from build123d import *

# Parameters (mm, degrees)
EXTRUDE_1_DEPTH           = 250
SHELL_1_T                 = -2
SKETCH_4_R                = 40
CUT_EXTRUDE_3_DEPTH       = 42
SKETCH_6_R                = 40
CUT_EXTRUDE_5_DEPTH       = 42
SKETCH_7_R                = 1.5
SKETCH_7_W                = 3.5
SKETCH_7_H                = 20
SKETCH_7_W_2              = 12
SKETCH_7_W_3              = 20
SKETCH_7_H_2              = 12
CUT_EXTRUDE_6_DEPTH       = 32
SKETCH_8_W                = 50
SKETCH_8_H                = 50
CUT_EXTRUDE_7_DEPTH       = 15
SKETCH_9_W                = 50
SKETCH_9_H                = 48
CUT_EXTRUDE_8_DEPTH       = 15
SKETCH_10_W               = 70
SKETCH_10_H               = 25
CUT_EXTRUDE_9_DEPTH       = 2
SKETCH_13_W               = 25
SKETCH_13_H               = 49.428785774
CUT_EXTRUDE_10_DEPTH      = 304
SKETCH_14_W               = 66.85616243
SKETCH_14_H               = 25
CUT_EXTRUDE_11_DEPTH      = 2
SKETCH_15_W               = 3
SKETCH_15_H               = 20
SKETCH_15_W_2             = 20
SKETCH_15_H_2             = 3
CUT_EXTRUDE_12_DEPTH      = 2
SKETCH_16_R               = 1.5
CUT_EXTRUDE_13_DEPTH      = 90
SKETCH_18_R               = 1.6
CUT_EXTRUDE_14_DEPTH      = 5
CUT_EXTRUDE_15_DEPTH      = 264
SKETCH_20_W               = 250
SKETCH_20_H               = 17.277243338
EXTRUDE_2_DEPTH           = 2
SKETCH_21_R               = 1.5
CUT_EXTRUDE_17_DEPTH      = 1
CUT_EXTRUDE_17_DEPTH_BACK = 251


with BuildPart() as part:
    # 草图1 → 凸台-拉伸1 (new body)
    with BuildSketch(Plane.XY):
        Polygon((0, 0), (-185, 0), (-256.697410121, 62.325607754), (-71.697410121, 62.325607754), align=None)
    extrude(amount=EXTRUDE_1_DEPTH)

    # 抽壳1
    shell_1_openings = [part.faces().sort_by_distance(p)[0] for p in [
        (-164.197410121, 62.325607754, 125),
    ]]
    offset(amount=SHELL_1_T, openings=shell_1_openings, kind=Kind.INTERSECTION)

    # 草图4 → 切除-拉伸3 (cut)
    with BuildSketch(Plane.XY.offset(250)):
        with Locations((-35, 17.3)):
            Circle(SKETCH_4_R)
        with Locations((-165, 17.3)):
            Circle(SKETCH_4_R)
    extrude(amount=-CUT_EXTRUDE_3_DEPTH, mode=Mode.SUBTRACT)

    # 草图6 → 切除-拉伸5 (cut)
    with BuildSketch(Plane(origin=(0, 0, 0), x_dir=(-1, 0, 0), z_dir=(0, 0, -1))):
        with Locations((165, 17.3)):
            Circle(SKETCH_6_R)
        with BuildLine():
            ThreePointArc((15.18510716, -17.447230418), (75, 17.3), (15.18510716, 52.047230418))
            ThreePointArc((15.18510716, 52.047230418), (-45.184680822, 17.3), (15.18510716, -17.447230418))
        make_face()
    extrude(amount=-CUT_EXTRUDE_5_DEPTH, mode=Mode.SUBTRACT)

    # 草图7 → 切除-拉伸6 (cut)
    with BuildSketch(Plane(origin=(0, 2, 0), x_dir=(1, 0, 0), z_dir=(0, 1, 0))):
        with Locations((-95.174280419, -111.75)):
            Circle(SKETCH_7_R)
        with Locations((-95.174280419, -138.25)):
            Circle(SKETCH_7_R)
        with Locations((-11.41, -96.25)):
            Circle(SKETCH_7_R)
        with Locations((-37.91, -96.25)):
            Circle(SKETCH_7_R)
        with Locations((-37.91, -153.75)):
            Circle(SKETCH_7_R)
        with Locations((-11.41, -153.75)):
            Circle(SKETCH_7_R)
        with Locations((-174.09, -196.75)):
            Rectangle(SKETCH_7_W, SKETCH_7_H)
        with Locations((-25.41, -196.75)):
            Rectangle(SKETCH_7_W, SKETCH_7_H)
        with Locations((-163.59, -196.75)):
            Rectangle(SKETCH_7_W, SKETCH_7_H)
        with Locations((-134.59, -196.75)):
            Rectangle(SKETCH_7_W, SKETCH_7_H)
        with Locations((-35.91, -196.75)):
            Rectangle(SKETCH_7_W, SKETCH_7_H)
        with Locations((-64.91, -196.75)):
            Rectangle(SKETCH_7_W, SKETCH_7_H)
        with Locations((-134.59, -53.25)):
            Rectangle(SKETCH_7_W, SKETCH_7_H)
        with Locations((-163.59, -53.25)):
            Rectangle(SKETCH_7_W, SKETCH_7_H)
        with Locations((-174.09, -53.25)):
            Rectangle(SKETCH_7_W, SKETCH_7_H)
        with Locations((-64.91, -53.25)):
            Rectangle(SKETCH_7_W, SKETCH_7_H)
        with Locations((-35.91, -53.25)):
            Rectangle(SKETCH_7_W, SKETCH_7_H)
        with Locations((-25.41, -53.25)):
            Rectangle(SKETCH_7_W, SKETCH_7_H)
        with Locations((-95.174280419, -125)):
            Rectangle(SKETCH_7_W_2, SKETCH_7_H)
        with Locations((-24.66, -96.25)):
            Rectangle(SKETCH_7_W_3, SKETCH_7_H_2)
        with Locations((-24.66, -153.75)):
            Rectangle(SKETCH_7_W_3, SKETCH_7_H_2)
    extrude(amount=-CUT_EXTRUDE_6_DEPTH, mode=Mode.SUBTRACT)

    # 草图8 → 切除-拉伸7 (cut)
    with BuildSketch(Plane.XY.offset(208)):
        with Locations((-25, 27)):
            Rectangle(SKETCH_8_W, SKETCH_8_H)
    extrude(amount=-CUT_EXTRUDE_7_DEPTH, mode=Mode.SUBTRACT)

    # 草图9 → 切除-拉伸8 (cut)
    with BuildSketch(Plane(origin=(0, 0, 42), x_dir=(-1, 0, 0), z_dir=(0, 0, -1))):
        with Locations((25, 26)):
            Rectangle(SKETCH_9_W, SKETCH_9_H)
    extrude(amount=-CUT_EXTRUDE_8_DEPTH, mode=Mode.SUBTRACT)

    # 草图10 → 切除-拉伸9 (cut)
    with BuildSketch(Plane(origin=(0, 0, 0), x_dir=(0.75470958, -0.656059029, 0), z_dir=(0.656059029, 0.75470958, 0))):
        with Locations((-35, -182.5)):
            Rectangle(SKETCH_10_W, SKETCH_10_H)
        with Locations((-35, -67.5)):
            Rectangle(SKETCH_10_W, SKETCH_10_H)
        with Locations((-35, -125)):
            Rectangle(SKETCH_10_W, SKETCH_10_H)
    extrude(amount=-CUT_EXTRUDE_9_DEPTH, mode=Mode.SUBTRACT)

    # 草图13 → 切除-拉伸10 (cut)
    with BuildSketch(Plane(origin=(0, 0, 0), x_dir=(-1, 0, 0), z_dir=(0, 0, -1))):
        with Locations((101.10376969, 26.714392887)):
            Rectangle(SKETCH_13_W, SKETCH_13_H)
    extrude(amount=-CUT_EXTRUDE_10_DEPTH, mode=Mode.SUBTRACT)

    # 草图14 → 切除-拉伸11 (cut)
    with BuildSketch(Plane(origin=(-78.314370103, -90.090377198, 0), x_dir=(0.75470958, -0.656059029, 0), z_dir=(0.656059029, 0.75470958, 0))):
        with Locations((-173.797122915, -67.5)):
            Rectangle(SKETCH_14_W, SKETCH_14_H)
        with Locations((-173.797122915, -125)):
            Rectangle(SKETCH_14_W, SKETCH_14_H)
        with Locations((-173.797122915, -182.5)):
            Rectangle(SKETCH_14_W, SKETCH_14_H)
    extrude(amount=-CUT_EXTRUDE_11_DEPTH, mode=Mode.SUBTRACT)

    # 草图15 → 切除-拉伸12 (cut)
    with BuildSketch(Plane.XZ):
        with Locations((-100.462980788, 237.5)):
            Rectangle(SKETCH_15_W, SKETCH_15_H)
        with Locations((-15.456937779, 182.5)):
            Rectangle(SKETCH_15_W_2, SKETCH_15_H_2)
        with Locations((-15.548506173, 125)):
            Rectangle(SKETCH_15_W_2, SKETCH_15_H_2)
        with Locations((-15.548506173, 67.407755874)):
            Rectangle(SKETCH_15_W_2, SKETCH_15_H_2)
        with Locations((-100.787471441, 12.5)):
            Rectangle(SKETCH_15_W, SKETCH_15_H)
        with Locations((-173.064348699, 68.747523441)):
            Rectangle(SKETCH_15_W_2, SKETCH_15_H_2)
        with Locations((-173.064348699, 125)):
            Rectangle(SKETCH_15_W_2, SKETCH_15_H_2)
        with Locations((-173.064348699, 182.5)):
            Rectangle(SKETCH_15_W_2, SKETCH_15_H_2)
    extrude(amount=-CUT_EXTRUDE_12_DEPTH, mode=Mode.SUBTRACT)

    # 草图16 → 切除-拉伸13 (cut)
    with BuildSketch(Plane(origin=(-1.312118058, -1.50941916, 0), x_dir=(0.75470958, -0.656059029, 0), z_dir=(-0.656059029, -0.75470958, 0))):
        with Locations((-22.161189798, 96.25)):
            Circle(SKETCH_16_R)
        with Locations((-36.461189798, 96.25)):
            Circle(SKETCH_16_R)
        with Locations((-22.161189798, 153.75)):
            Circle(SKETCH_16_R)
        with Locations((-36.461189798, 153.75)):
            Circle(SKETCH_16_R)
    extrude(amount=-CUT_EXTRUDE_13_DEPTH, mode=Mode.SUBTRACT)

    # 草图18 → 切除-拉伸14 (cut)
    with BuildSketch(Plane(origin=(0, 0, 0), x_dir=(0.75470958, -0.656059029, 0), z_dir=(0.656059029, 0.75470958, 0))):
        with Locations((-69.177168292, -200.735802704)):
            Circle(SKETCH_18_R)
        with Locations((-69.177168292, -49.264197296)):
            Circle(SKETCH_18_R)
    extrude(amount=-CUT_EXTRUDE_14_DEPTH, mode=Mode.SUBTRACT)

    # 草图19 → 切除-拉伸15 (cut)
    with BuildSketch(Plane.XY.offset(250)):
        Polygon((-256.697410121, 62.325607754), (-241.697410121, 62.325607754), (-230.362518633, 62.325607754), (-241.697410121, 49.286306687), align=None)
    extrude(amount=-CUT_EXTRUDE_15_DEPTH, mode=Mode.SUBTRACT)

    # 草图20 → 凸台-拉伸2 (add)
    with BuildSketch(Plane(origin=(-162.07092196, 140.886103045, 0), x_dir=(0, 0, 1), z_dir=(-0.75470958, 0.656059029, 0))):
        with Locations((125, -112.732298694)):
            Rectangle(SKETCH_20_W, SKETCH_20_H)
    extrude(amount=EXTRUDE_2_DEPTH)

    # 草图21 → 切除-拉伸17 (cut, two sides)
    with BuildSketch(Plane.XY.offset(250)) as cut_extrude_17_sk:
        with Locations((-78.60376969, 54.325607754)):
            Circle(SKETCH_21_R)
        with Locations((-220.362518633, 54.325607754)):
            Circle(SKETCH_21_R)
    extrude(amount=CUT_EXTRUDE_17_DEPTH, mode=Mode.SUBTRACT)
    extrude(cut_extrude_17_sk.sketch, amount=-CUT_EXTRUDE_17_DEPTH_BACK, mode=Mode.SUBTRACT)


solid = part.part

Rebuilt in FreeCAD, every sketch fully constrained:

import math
import FreeCAD as App
import Part
import Sketcher
Q = App.Units.Quantity


def faces_at(feature, points):
    """Names of the faces that lie closest to the given points."""
    faces = feature.Shape.Faces
    near = lambda p: min(range(len(faces)), key=lambda i: faces[i].distToShape(Part.Vertex(*p))[0])
    return sorted({f"Face{near(p) + 1}" for p in points})


def add_polygon(sketch, points):
    """Adds a closed chain of lines whose ends are joined by coincident constraints."""
    first, n = sketch.GeometryCount, len(points)
    for a, b in zip(points, points[1:] + points[:1]):
        sketch.addGeometry(Part.LineSegment(App.Vector(*a, 0), App.Vector(*b, 0)), False)
    for i in range(n):
        sketch.addConstraint(Sketcher.Constraint("Coincident", first + i, 2, first + (i + 1) % n, 1))

doc = App.newDocument("Part")
params = doc.addObject("Spreadsheet::Sheet", "Params")
for row, (alias, value) in enumerate([
    ("sketch1_width", "185 mm"),
    ("sketch1_length", "95 mm"),
    ("pad1_length", "250 mm"),
    ("thickness_wall", "2 mm"),
    ("sketch2_diameter", "80 mm"),
    ("pocket1_length", "42 mm"),
    ("sketch3_diameter", "80 mm"),
    ("pocket2_length", "42 mm"),
    ("sketch4_diameter", "3 mm"),
    ("sketch4_width", "12 mm"),
    ("sketch4_width2", "20 mm"),
    ("sketch4_width3", "3.5 mm"),
    ("pocket3_length", "32 mm"),
    ("sketch5_width", "50 mm"),
    ("pocket4_length", "15 mm"),
    ("sketch6_width", "50 mm"),
    ("sketch6_height", "48 mm"),
    ("pocket5_length", "15 mm"),
    ("sketch7_width", "70 mm"),
    ("sketch7_height", "25 mm"),
    ("pocket6_length", "2 mm"),
    ("sketch8_width", "25 mm"),
    ("pocket7_length", "304 mm"),
    ("sketch9_height", "25 mm"),
    ("pocket8_length", "2 mm"),
    ("sketch10_width", "3 mm"),
    ("sketch10_width2", "20 mm"),
    ("pocket9_length", "2 mm"),
    ("sketch11_diameter", "3 mm"),
    ("pocket10_length", "90 mm"),
    ("sketch12_diameter", "3.2 mm"),
    ("pocket11_length", "5 mm"),
    ("pocket12_length", "264 mm"),
    ("sketch14_width", "250 mm"),
    ("pad2_length", "2 mm"),
    ("sketch15_diameter", "3 mm"),
], start=1):
    params.set(f"A{row}", alias)
    params.set(f"B{row}", "=" + value)
    params.setAlias(f"B{row}", alias)

body = doc.addObject("PartDesign::Body", "Body")

sketch1 = body.newObject("Sketcher::SketchObject", "Sketch")
sketch1.AttachmentSupport = (doc.getObject("XY_Plane"), [""])
sketch1.MapMode = "FlatFace"
add_polygon(sketch1, [(-185, 0), (0, 0), (-72, 62), (-257, 62)])
sketch1.addConstraint([
    Sketcher.Constraint("Horizontal", 0),
    Sketcher.Constraint("Horizontal", 2),
    Sketcher.Constraint("Coincident", 0, 2, -1, 1),
    Sketcher.Constraint("Parallel", 1, 3),
    Sketcher.Constraint("DistanceX", 0, 1, 0, 2, 185.0),
    Sketcher.Constraint("Angle", 1, Q("139 deg")),
    Sketcher.Constraint("Distance", 1, 95.0),
])
sketch1.setExpression("Constraints[8]", "Params.sketch1_width")
sketch1.setExpression("Constraints[10]", "Params.sketch1_length")
pad1 = body.newObject("PartDesign::Pad", "Pad")
pad1.Profile = sketch1
pad1.setExpression("Length", "Params.pad1_length")
doc.recompute()

thickness = body.newObject("PartDesign::Thickness", "Thickness")
thickness.Base = (pad1, faces_at(pad1, [(-164.197, 62.326, 125)]))
thickness.setExpression("Value", "Params.thickness_wall")
thickness.Reversed = True
thickness.Join = "Intersection"

sketch2 = body.newObject("Sketcher::SketchObject", "Sketch001")
sketch2.AttachmentSupport = (doc.getObject("XY_Plane"), [""])
sketch2.MapMode = "FlatFace"
sketch2.AttachmentOffset = App.Placement(App.Vector(0, 0, 250), App.Rotation())
sketch2.addGeometry([
    Part.Circle(App.Vector(-35, 17, 0), App.Vector(0, 0, 1), 40),
    Part.Circle(App.Vector(-165, 17, 0), App.Vector(0, 0, 1), 40),
], False)
sketch2.addConstraint([
    Sketcher.Constraint("Equal", 0, 1),
    Sketcher.Constraint("Horizontal", 0, 3, 1, 3),
    Sketcher.Constraint("Diameter", 0, 80.0),
    Sketcher.Constraint("DistanceX", 0, 3, -1, 1, 35.0),
    Sketcher.Constraint("DistanceX", 1, 3, -1, 1, 165.0),
    Sketcher.Constraint("DistanceY", -1, 1, 0, 3, 17.3),
])
sketch2.setExpression("Constraints[2]", "Params.sketch2_diameter")
pocket1 = body.newObject("PartDesign::Pocket", "Pocket")
pocket1.Profile = sketch2
pocket1.setExpression("Length", "Params.pocket1_length")

sketch3 = body.newObject("Sketcher::SketchObject", "Sketch002")
sketch3.AttachmentSupport = (doc.getObject("XY_Plane"), [""])
sketch3.MapMode = "FlatFace"
sketch3.addGeometry([
    Part.Circle(App.Vector(-165, 17, 0), App.Vector(0, 0, 1), 40),
    Part.ArcOfCircle(Part.Circle(App.Vector(-35, 17, 0), App.Vector(0, 0, 1), 40), math.radians(60), math.radians(300)),
    Part.ArcOfCircle(Part.Circle(App.Vector(5, 17, 0), App.Vector(0, 0, 1), 40), math.radians(-120), math.radians(120)),
], False)
sketch3.addConstraint([
    Sketcher.Constraint("Coincident", 1, 1, 2, 2),
    Sketcher.Constraint("Coincident", 2, 1, 1, 2),
    Sketcher.Constraint("Equal", 0, 1),
    Sketcher.Constraint("Horizontal", 0, 3, 1, 3),
    Sketcher.Constraint("Horizontal", 1, 3, 2, 3),
    Sketcher.Constraint("Diameter", 0, 80.0),
    Sketcher.Constraint("DistanceX", 0, 3, -1, 1, 165.0),
    Sketcher.Constraint("DistanceX", 1, 3, -1, 1, 35.0),
    Sketcher.Constraint("DistanceX", -1, 1, 2, 3, 5.0),
    Sketcher.Constraint("DistanceY", -1, 1, 0, 3, 17.3),
    Sketcher.Constraint("Radius", 2, 40.184681),
])
sketch3.setExpression("Constraints[5]", "Params.sketch3_diameter")
pocket2 = body.newObject("PartDesign::Pocket", "Pocket001")
pocket2.Profile = sketch3
pocket2.setExpression("Length", "Params.pocket2_length")
pocket2.Reversed = True

sketch4 = body.newObject("Sketcher::SketchObject", "Sketch003")
sketch4.AttachmentSupport = (doc.getObject("XZ_Plane"), [""])
sketch4.MapMode = "FlatFace"
sketch4.AttachmentOffset = App.Placement(App.Vector(0, 0, -2), App.Rotation())
sketch4.addGeometry(Part.Circle(App.Vector(-95.2, 111.8, 0), App.Vector(0, 0, 1), 1.5), False)
sketch4.addGeometry(Part.Circle(App.Vector(-95.2, 138.2, 0), App.Vector(0, 0, 1), 1.5), False)
sketch4.addGeometry(Part.Circle(App.Vector(-11.4, 96.2, 0), App.Vector(0, 0, 1), 1.5), False)
sketch4.addGeometry(Part.Circle(App.Vector(-37.9, 96.2, 0), App.Vector(0, 0, 1), 1.5), False)
sketch4.addGeometry(Part.Circle(App.Vector(-37.9, 153.8, 0), App.Vector(0, 0, 1), 1.5), False)
sketch4.addGeometry(Part.Circle(App.Vector(-11.4, 153.8, 0), App.Vector(0, 0, 1), 1.5), False)
add_polygon(sketch4, [(-175.8, 186.8), (-175.8, 206.8), (-172.3, 206.8), (-172.3, 186.8)])
add_polygon(sketch4, [(-27.2, 186.8), (-27.2, 206.8), (-23.7, 206.8), (-23.7, 186.8)])
add_polygon(sketch4, [(-165.3, 186.8), (-165.3, 206.8), (-161.8, 206.8), (-161.8, 186.8)])
add_polygon(sketch4, [(-136.3, 186.8), (-136.3, 206.8), (-132.8, 206.8), (-132.8, 186.8)])
add_polygon(sketch4, [(-37.7, 186.8), (-37.7, 206.8), (-34.2, 206.8), (-34.2, 186.8)])
add_polygon(sketch4, [(-66.7, 186.8), (-66.7, 206.8), (-63.2, 206.8), (-63.2, 186.8)])
add_polygon(sketch4, [(-136.3, 43.2), (-136.3, 63.2), (-132.8, 63.2), (-132.8, 43.2)])
add_polygon(sketch4, [(-165.3, 43.2), (-165.3, 63.2), (-161.8, 63.2), (-161.8, 43.2)])
add_polygon(sketch4, [(-175.8, 43.2), (-175.8, 63.2), (-172.3, 63.2), (-172.3, 43.2)])
add_polygon(sketch4, [(-66.7, 43.2), (-66.7, 63.2), (-63.2, 63.2), (-63.2, 43.2)])
add_polygon(sketch4, [(-37.7, 43.2), (-37.7, 63.2), (-34.2, 63.2), (-34.2, 43.2)])
add_polygon(sketch4, [(-27.2, 43.2), (-27.2, 63.2), (-23.7, 63.2), (-23.7, 43.2)])
add_polygon(sketch4, [(-101.2, 115), (-101.2, 135), (-89.2, 135), (-89.2, 115)])
add_polygon(sketch4, [(-34.7, 90.2), (-34.7, 102.2), (-14.7, 102.2), (-14.7, 90.2)])
add_polygon(sketch4, [(-34.7, 147.8), (-34.7, 159.8), (-14.7, 159.8), (-14.7, 147.8)])
sketch4.addConstraint([
    Sketcher.Constraint("Vertical", 6),
    Sketcher.Constraint("Horizontal", 7),
    Sketcher.Constraint("Vertical", 8),
    Sketcher.Constraint("Horizontal", 9),
    Sketcher.Constraint("Vertical", 10),
    Sketcher.Constraint("Horizontal", 11),
    Sketcher.Constraint("Vertical", 12),
    Sketcher.Constraint("Horizontal", 13),
    Sketcher.Constraint("Vertical", 14),
    Sketcher.Constraint("Horizontal", 15),
    Sketcher.Constraint("Vertical", 16),
    Sketcher.Constraint("Horizontal", 17),
    Sketcher.Constraint("Vertical", 18),
    Sketcher.Constraint("Horizontal", 19),
    Sketcher.Constraint("Vertical", 20),
    Sketcher.Constraint("Horizontal", 21),
    Sketcher.Constraint("Vertical", 22),
    Sketcher.Constraint("Horizontal", 23),
    Sketcher.Constraint("Vertical", 24),
    Sketcher.Constraint("Horizontal", 25),
    Sketcher.Constraint("Vertical", 26),
    Sketcher.Constraint("Horizontal", 27),
    Sketcher.Constraint("Vertical", 28),
    Sketcher.Constraint("Horizontal", 29),
    Sketcher.Constraint("Vertical", 30),
    Sketcher.Constraint("Horizontal", 31),
    Sketcher.Constraint("Vertical", 32),
    Sketcher.Constraint("Horizontal", 33),
    Sketcher.Constraint("Vertical", 34),
    Sketcher.Constraint("Horizontal", 35),
    Sketcher.Constraint("Vertical", 36),
    Sketcher.Constraint("Horizontal", 37),
    Sketcher.Constraint("Vertical", 38),
    Sketcher.Constraint("Horizontal", 39),
    Sketcher.Constraint("Vertical", 40),
    Sketcher.Constraint("Horizontal", 41),
    Sketcher.Constraint("Vertical", 42),
    Sketcher.Constraint("Horizontal", 43),
    Sketcher.Constraint("Vertical", 44),
    Sketcher.Constraint("Horizontal", 45),
    Sketcher.Constraint("Vertical", 46),
    Sketcher.Constraint("Horizontal", 47),
    Sketcher.Constraint("Vertical", 48),
    Sketcher.Constraint("Horizontal", 49),
    Sketcher.Constraint("Vertical", 50),
    Sketcher.Constraint("Horizontal", 51),
    Sketcher.Constraint("Vertical", 52),
    Sketcher.Constraint("Horizontal", 53),
    Sketcher.Constraint("Vertical", 54),
    Sketcher.Constraint("Horizontal", 55),
    Sketcher.Constraint("Vertical", 56),
    Sketcher.Constraint("Horizontal", 57),
    Sketcher.Constraint("Vertical", 58),
    Sketcher.Constraint("Horizontal", 59),
    Sketcher.Constraint("Vertical", 60),
    Sketcher.Constraint("Horizontal", 61),
    Sketcher.Constraint("Vertical", 62),
    Sketcher.Constraint("Horizontal", 63),
    Sketcher.Constraint("Vertical", 64),
    Sketcher.Constraint("Horizontal", 65),
    Sketcher.Constraint("Equal", 0, 1),
    Sketcher.Constraint("Equal", 1, 2),
    Sketcher.Constraint("Equal", 2, 3),
    Sketcher.Constraint("Equal", 3, 4),
    Sketcher.Constraint("Equal", 4, 5),
    Sketcher.Constraint("Horizontal", 2, 3, 3, 3),
    Sketcher.Constraint("Horizontal", 4, 3, 5, 3),
    Sketcher.Constraint("Horizontal", 7, 2, 10, 2),
    Sketcher.Constraint("Horizontal", 9, 2, 12, 2),
    Sketcher.Constraint("Horizontal", 11, 2, 14, 2),
    Sketcher.Constraint("Horizontal", 13, 2, 16, 2),
    Sketcher.Constraint("Horizontal", 15, 2, 18, 2),
    Sketcher.Constraint("Horizontal", 17, 2, 20, 2),
    Sketcher.Constraint("Horizontal", 19, 2, 22, 2),
    Sketcher.Constraint("Horizontal", 21, 2, 24, 2),
    Sketcher.Constraint("Horizontal", 23, 2, 26, 2),
    Sketcher.Constraint("Horizontal", 25, 2, 28, 2),
    Sketcher.Constraint("Horizontal", 31, 2, 34, 2),
    Sketcher.Constraint("Horizontal", 33, 2, 36, 2),
    Sketcher.Constraint("Horizontal", 35, 2, 38, 2),
    Sketcher.Constraint("Horizontal", 37, 2, 40, 2),
    Sketcher.Constraint("Horizontal", 39, 2, 42, 2),
    Sketcher.Constraint("Horizontal", 41, 2, 44, 2),
    Sketcher.Constraint("Horizontal", 43, 2, 46, 2),
    Sketcher.Constraint("Horizontal", 45, 2, 48, 2),
    Sketcher.Constraint("Horizontal", 47, 2, 50, 2),
    Sketcher.Constraint("Horizontal", 49, 2, 52, 2),
    Sketcher.Constraint("Vertical", 0, 3, 1, 3),
    Sketcher.Constraint("Vertical", 3, 3, 4, 3),
    Sketcher.Constraint("Vertical", 2, 3, 5, 3),
    Sketcher.Constraint("Vertical", 21, 2, 30, 2),
    Sketcher.Constraint("Vertical", 20, 2, 31, 2),
    Sketcher.Constraint("Vertical", 17, 2, 34, 2),
    Sketcher.Constraint("Vertical", 16, 2, 35, 2),
    Sketcher.Constraint("Vertical", 9, 2, 38, 2),
    Sketcher.Constraint("Vertical", 8, 2, 39, 2),
    Sketcher.Constraint("Vertical", 29, 2, 42, 2),
    Sketcher.Constraint("Vertical", 28, 2, 43, 2),
    Sketcher.Constraint("Vertical", 25, 2, 46, 2),
    Sketcher.Constraint("Vertical", 24, 2, 47, 2),
    Sketcher.Constraint("Vertical", 13, 2, 50, 2),
    Sketcher.Constraint("Vertical", 12, 2, 51, 2),
    Sketcher.Constraint("Vertical", 61, 2, 62, 2),
    Sketcher.Constraint("Vertical", 60, 2, 63, 2),
    Sketcher.Constraint("Equal", 9, 11),
    Sketcher.Constraint("Equal", 13, 15),
    Sketcher.Constraint("Equal", 17, 19),
    Sketcher.Constraint("Equal", 21, 23),
    Sketcher.Constraint("Equal", 25, 27),
    Sketcher.Constraint("Equal", 65, 6),
    Sketcher.Constraint("Equal", 28, 30),
    Sketcher.Constraint("Equal", 52, 54),
    Sketcher.Constraint("Equal", 57, 58),
    Sketcher.Constraint("Equal", 60, 62),
    Sketcher.Constraint("Diameter", 0, 3.0),
    Sketcher.Constraint("DistanceX", 55, 1, 55, 2, 12.0),
    Sketcher.Constraint("DistanceX", 59, 1, 59, 2, 20.0),
    Sketcher.Constraint("DistanceX", 7, 1, 7, 2, 3.5),
    Sketcher.Constraint("DistanceY", -1, 1, 54, 2, 135.0),
    Sketcher.Constraint("DistanceY", -1, 1, 0, 3, 111.75),
    Sketcher.Constraint("DistanceY", -1, 1, 1, 3, 138.25),
    Sketcher.Constraint("DistanceX", 2, 3, -1, 1, 11.41),
    Sketcher.Constraint("DistanceY", -1, 1, 2, 3, 96.25),
    Sketcher.Constraint("DistanceX", 3, 3, -1, 1, 37.91),
    Sketcher.Constraint("DistanceY", -1, 1, 4, 3, 153.75),
    Sketcher.Constraint("DistanceX", 6, 2, -1, 1, 175.84),
    Sketcher.Constraint("DistanceY", -1, 1, 6, 2, 206.75),
    Sketcher.Constraint("DistanceX", 10, 2, -1, 1, 27.16),
    Sketcher.Constraint("DistanceX", 14, 2, -1, 1, 165.34),
    Sketcher.Constraint("DistanceX", 18, 2, -1, 1, 136.34),
    Sketcher.Constraint("DistanceX", 22, 2, -1, 1, 37.66),
    Sketcher.Constraint("DistanceX", 26, 2, -1, 1, 66.66),
    Sketcher.Constraint("DistanceY", -1, 1, 30, 2, 63.25),
    Sketcher.Constraint("DistanceX", 58, 2, -1, 1, 34.66),
    Sketcher.Constraint("DistanceY", -1, 1, 58, 2, 102.25),
    Sketcher.Constraint("DistanceY", -1, 1, 62, 2, 159.75),
    Sketcher.Constraint("DistanceX", 0, 3, -1, 1, 95.17428),
    Sketcher.Constraint("DistanceX", 54, 2, -1, 1, 101.17428),
])
sketch4.setExpression("Constraints[174]", "Params.sketch4_diameter")
sketch4.setExpression("Constraints[175]", "Params.sketch4_width")
sketch4.setExpression("Constraints[176]", "Params.sketch4_width2")
sketch4.setExpression("Constraints[177]", "Params.sketch4_width3")
pocket3 = body.newObject("PartDesign::Pocket", "Pocket002")
pocket3.Profile = sketch4
pocket3.setExpression("Length", "Params.pocket3_length")
pocket3.Reversed = True

sketch5 = body.newObject("Sketcher::SketchObject", "Sketch004")
sketch5.AttachmentSupport = (doc.getObject("XY_Plane"), [""])
sketch5.MapMode = "FlatFace"
sketch5.AttachmentOffset = App.Placement(App.Vector(0, 0, 208), App.Rotation())
add_polygon(sketch5, [(-50, 52), (-50, 2), (0, 2), (0, 52)])
sketch5.addConstraint([
    Sketcher.Constraint("Vertical", 0),
    Sketcher.Constraint("Horizontal", 1),
    Sketcher.Constraint("Vertical", 2),
    Sketcher.Constraint("Horizontal", 3),
    Sketcher.Constraint("PointOnObject", 1, 2, -2),
    Sketcher.Constraint("Equal", 3, 0),
    Sketcher.Constraint("DistanceX", 1, 1, 1, 2, 50.0),
    Sketcher.Constraint("DistanceY", -1, 1, 0, 2, 2.0),
])
sketch5.setExpression("Constraints[10]", "Params.sketch5_width")
pocket4 = body.newObject("PartDesign::Pocket", "Pocket003")
pocket4.Profile = sketch5
pocket4.setExpression("Length", "Params.pocket4_length")

sketch6 = body.newObject("Sketcher::SketchObject", "Sketch005")
sketch6.AttachmentSupport = (doc.getObject("XY_Plane"), [""])
sketch6.MapMode = "FlatFace"
sketch6.AttachmentOffset = App.Placement(App.Vector(0, 0, 42), App.Rotation())
add_polygon(sketch6, [(0, 50), (0, 2), (-50, 2), (-50, 50)])
sketch6.addConstraint([
    Sketcher.Constraint("Vertical", 0),
    Sketcher.Constraint("Horizontal", 1),
    Sketcher.Constraint("Vertical", 2),
    Sketcher.Constraint("Horizontal", 3),
    Sketcher.Constraint("PointOnObject", 0, 2, -2),
    Sketcher.Constraint("DistanceX", 1, 2, 1, 1, 50.0),
    Sketcher.Constraint("DistanceY", 0, 2, 0, 1, 48.0),
    Sketcher.Constraint("DistanceY", -1, 1, 0, 2, 2.0),
])
sketch6.setExpression("Constraints[9]", "Params.sketch6_width")
sketch6.setExpression("Constraints[10]", "Params.sketch6_height")
pocket5 = body.newObject("PartDesign::Pocket", "Pocket004")
pocket5.Profile = sketch6
pocket5.setExpression("Length", "Params.pocket5_length")
pocket5.Reversed = True

sketch7 = body.newObject("Sketcher::SketchObject", "Sketch006")
sketch7.Placement = App.Placement(App.Vector(0, 0, 0), App.Rotation(App.Vector(0.75470958, -0.656059029, 0), App.Vector(0, 0, -1), App.Vector(0.656059029, 0.75470958, 0), "ZXY"))
add_polygon(sketch7, [(-70, -170), (-70, -195), (0, -195), (0, -170)])
add_polygon(sketch7, [(-70, -55), (-70, -80), (0, -80), (0, -55)])
add_polygon(sketch7, [(-70, -112), (-70, -137), (0, -137), (0, -112)])
sketch7.addConstraint([
    Sketcher.Constraint("Vertical", 0),
    Sketcher.Constraint("Horizontal", 1),
    Sketcher.Constraint("Vertical", 2),
    Sketcher.Constraint("Horizontal", 3),
    Sketcher.Constraint("Vertical", 4),
    Sketcher.Constraint("Horizontal", 5),
    Sketcher.Constraint("Vertical", 6),
    Sketcher.Constraint("Horizontal", 7),
    Sketcher.Constraint("Vertical", 8),
    Sketcher.Constraint("Horizontal", 9),
    Sketcher.Constraint("Vertical", 10),
    Sketcher.Constraint("Horizontal", 11),
    Sketcher.Constraint("PointOnObject", 1, 2, -2),
    Sketcher.Constraint("PointOnObject", 5, 2, -2),
    Sketcher.Constraint("PointOnObject", 9, 2, -2),
    Sketcher.Constraint("Vertical", 3, 2, 4, 2),
    Sketcher.Constraint("Vertical", 7, 2, 8, 2),
    Sketcher.Constraint("Equal", 2, 4),
    Sketcher.Constraint("Equal", 6, 8),
    Sketcher.Constraint("DistanceX", 1, 1, 1, 2, 70.0),
    Sketcher.Constraint("DistanceY", 0, 2, 0, 1, 25.0),
    Sketcher.Constraint("DistanceY", 0, 2, -1, 1, 195.0),
    Sketcher.Constraint("DistanceY", 4, 2, -1, 1, 80.0),
    Sketcher.Constraint("DistanceY", 8, 2, -1, 1, 137.5),
])
sketch7.setExpression("Constraints[31]", "Params.sketch7_width")
sketch7.setExpression("Constraints[32]", "Params.sketch7_height")
pocket6 = body.newObject("PartDesign::Pocket", "Pocket005")
pocket6.Profile = sketch7
pocket6.setExpression("Length", "Params.pocket6_length")

sketch8 = body.newObject("Sketcher::SketchObject", "Sketch007")
sketch8.AttachmentSupport = (doc.getObject("XY_Plane"), [""])
sketch8.MapMode = "FlatFace"
add_polygon(sketch8, [(-89, 51), (-89, 2), (-114, 2), (-114, 51)])
sketch8.addConstraint([
    Sketcher.Constraint("Vertical", 0),
    Sketcher.Constraint("Horizontal", 1),
    Sketcher.Constraint("Vertical", 2),
    Sketcher.Constraint("Horizontal", 3),
    Sketcher.Constraint("DistanceX", 1, 2, 1, 1, 25.0),
    Sketcher.Constraint("DistanceY", -1, 1, 0, 2, 2.0),
    Sketcher.Constraint("DistanceY", 0, 2, 0, 1, 49.428786),
    Sketcher.Constraint("DistanceX", 0, 2, -1, 1, 88.60377),
])
sketch8.setExpression("Constraints[8]", "Params.sketch8_width")
pocket7 = body.newObject("PartDesign::Pocket", "Pocket006")
pocket7.Profile = sketch8
pocket7.setExpression("Length", "Params.pocket7_length")
pocket7.Reversed = True

sketch9 = body.newObject("Sketcher::SketchObject", "Sketch008")
sketch9.Placement = App.Placement(App.Vector(-78.31437, -90.090377, 0), App.Rotation(App.Vector(0.75470958, -0.656059029, 0), App.Vector(0, 0, -1), App.Vector(0.656059029, 0.75470958, 0), "ZXY"))
add_polygon(sketch9, [(-207, -55), (-207, -80), (-140, -80), (-140, -55)])
add_polygon(sketch9, [(-207, -112), (-207, -137), (-140, -137), (-140, -112)])
add_polygon(sketch9, [(-207, -170), (-207, -195), (-140, -195), (-140, -170)])
sketch9.addConstraint([
    Sketcher.Constraint("Vertical", 0),
    Sketcher.Constraint("Horizontal", 1),
    Sketcher.Constraint("Vertical", 2),
    Sketcher.Constraint("Horizontal", 3),
    Sketcher.Constraint("Vertical", 4),
    Sketcher.Constraint("Horizontal", 5),
    Sketcher.Constraint("Vertical", 6),
    Sketcher.Constraint("Horizontal", 7),
    Sketcher.Constraint("Vertical", 8),
    Sketcher.Constraint("Horizontal", 9),
    Sketcher.Constraint("Vertical", 10),
    Sketcher.Constraint("Horizontal", 11),
    Sketcher.Constraint("Vertical", 3, 2, 4, 2),
    Sketcher.Constraint("Vertical", 2, 2, 5, 2),
    Sketcher.Constraint("Vertical", 7, 2, 8, 2),
    Sketcher.Constraint("Vertical", 6, 2, 9, 2),
    Sketcher.Constraint("Equal", 2, 4),
    Sketcher.Constraint("Equal", 6, 8),
    Sketcher.Constraint("DistanceY", 0, 2, 0, 1, 25.0),
    Sketcher.Constraint("DistanceY", 0, 2, -1, 1, 80.0),
    Sketcher.Constraint("DistanceY", 8, 2, -1, 1, 195.0),
    Sketcher.Constraint("DistanceY", 4, 2, -1, 1, 137.5),
    Sketcher.Constraint("DistanceX", 1, 1, 1, 2, 66.856162),
    Sketcher.Constraint("DistanceX", 1, 2, -1, 1, 140.369042),
])
sketch9.setExpression("Constraints[30]", "Params.sketch9_height")
pocket8 = body.newObject("PartDesign::Pocket", "Pocket007")
pocket8.Profile = sketch9
pocket8.setExpression("Length", "Params.pocket8_length")

sketch10 = body.newObject("Sketcher::SketchObject", "Sketch009")
sketch10.AttachmentSupport = (doc.getObject("XZ_Plane"), [""])
sketch10.MapMode = "FlatFace"
add_polygon(sketch10, [(-102, 247.5), (-102, 227.5), (-99, 227.5), (-99, 247.5)])
add_polygon(sketch10, [(-25.5, 184), (-25.5, 181), (-5.5, 181), (-5.5, 184)])
add_polygon(sketch10, [(-25.5, 126.5), (-25.5, 123.5), (-5.5, 123.5), (-5.5, 126.5)])
add_polygon(sketch10, [(-25.5, 68.9), (-25.5, 65.9), (-5.5, 65.9), (-5.5, 68.9)])
add_polygon(sketch10, [(-102.3, 22.5), (-102.3, 2.5), (-99.3, 2.5), (-99.3, 22.5)])
add_polygon(sketch10, [(-183.1, 70.2), (-183.1, 67.2), (-163.1, 67.2), (-163.1, 70.2)])
add_polygon(sketch10, [(-183.1, 126.5), (-183.1, 123.5), (-163.1, 123.5), (-163.1, 126.5)])
add_polygon(sketch10, [(-183.1, 184), (-183.1, 181), (-163.1, 181), (-163.1, 184)])
sketch10.addConstraint([
    Sketcher.Constraint("Vertical", 0),
    Sketcher.Constraint("Horizontal", 1),
    Sketcher.Constraint("Vertical", 2),
    Sketcher.Constraint("Horizontal", 3),
    Sketcher.Constraint("Vertical", 4),
    Sketcher.Constraint("Horizontal", 5),
    Sketcher.Constraint("Vertical", 6),
    Sketcher.Constraint("Horizontal", 7),
    Sketcher.Constraint("Vertical", 8),
    Sketcher.Constraint("Horizontal", 9),
    Sketcher.Constraint("Vertical", 10),
    Sketcher.Constraint("Horizontal", 11),
    Sketcher.Constraint("Vertical", 12),
    Sketcher.Constraint("Horizontal", 13),
    Sketcher.Constraint("Vertical", 14),
    Sketcher.Constraint("Horizontal", 15),
    Sketcher.Constraint("Vertical", 16),
    Sketcher.Constraint("Horizontal", 17),
    Sketcher.Constraint("Vertical", 18),
    Sketcher.Constraint("Horizontal", 19),
    Sketcher.Constraint("Vertical", 20),
    Sketcher.Constraint("Horizontal", 21),
    Sketcher.Constraint("Vertical", 22),
    Sketcher.Constraint("Horizontal", 23),
    Sketcher.Constraint("Vertical", 24),
    Sketcher.Constraint("Horizontal", 25),
    Sketcher.Constraint("Vertical", 26),
    Sketcher.Constraint("Horizontal", 27),
    Sketcher.Constraint("Vertical", 28),
    Sketcher.Constraint("Horizontal", 29),
    Sketcher.Constraint("Vertical", 30),
    Sketcher.Constraint("Horizontal", 31),
    Sketcher.Constraint("Horizontal", 9, 2, 24, 2),
    Sketcher.Constraint("Horizontal", 11, 2, 26, 2),
    Sketcher.Constraint("Horizontal", 5, 2, 28, 2),
    Sketcher.Constraint("Horizontal", 7, 2, 30, 2),
    Sketcher.Constraint("Vertical", 11, 2, 12, 2),
    Sketcher.Constraint("Vertical", 10, 2, 13, 2),
    Sketcher.Constraint("Vertical", 23, 2, 24, 2),
    Sketcher.Constraint("Vertical", 22, 2, 25, 2),
    Sketcher.Constraint("Vertical", 27, 2, 28, 2),
    Sketcher.Constraint("Vertical", 26, 2, 29, 2),
    Sketcher.Constraint("Equal", 7, 9),
    Sketcher.Constraint("Equal", 3, 17),
    Sketcher.Constraint("Equal", 15, 21),
    Sketcher.Constraint("Equal", 31, 0),
    Sketcher.Constraint("Equal", 19, 4),
    Sketcher.Constraint("Equal", 6, 8),
    Sketcher.Constraint("Equal", 10, 12),
    Sketcher.Constraint("Equal", 2, 16),
    Sketcher.Constraint("Equal", 14, 20),
    Sketcher.Constraint("DistanceX", 1, 1, 1, 2, 3.0),
    Sketcher.Constraint("DistanceX", 5, 1, 5, 2, 20.0),
    Sketcher.Constraint("DistanceY", -1, 1, 4, 2, 181.0),
    Sketcher.Constraint("DistanceY", 8, 2, 1, 2, 104.0),
    Sketcher.Constraint("DistanceY", 16, 2, 8, 2, 121.0),
    Sketcher.Constraint("DistanceY", -1, 1, 0, 2, 227.5),
    Sketcher.Constraint("DistanceX", 0, 2, -1, 1, 101.962981),
    Sketcher.Constraint("DistanceX", 16, 2, -1, 1, 102.287471),
    Sketcher.Constraint("DistanceX", 20, 2, -1, 1, 183.064349),
    Sketcher.Constraint("DistanceX", 8, 2, 4, 2, 0.091568),
    Sketcher.Constraint("DistanceX", 4, 2, -1, 1, 25.456938),
    Sketcher.Constraint("DistanceY", -1, 1, 12, 2, 65.907756),
    Sketcher.Constraint("DistanceY", -1, 1, 20, 2, 67.247523),
])
sketch10.setExpression("Constraints[83]", "Params.sketch10_width")
sketch10.setExpression("Constraints[84]", "Params.sketch10_width2")
pocket9 = body.newObject("PartDesign::Pocket", "Pocket008")
pocket9.Profile = sketch10
pocket9.setExpression("Length", "Params.pocket9_length")

sketch11 = body.newObject("Sketcher::SketchObject", "Sketch010")
sketch11.Placement = App.Placement(App.Vector(-1.312118, -1.509419, 0), App.Rotation(App.Vector(0.75470958, -0.656059029, 0), App.Vector(0, 0, 1), App.Vector(-0.656059029, -0.75470958, 0), "ZXY"))
sketch11.addGeometry([
    Part.Circle(App.Vector(-22.2, 96.2, 0), App.Vector(0, 0, 1), 1.5),
    Part.Circle(App.Vector(-36.5, 96.2, 0), App.Vector(0, 0, 1), 1.5),
    Part.Circle(App.Vector(-22.2, 153.7, 0), App.Vector(0, 0, 1), 1.5),
    Part.Circle(App.Vector(-36.5, 153.7, 0), App.Vector(0, 0, 1), 1.5),
], False)
sketch11.addConstraint([
    Sketcher.Constraint("Equal", 0, 1),
    Sketcher.Constraint("Equal", 1, 2),
    Sketcher.Constraint("Equal", 2, 3),
    Sketcher.Constraint("Horizontal", 0, 3, 1, 3),
    Sketcher.Constraint("Horizontal", 2, 3, 3, 3),
    Sketcher.Constraint("Vertical", 0, 3, 2, 3),
    Sketcher.Constraint("Vertical", 1, 3, 3, 3),
    Sketcher.Constraint("Diameter", 0, 3.0),
    Sketcher.Constraint("DistanceX", 1, 3, 0, 3, 14.3),
    Sketcher.Constraint("DistanceY", 0, 3, 2, 3, 57.5),
    Sketcher.Constraint("DistanceY", -1, 1, 0, 3, 96.25),
    Sketcher.Constraint("DistanceX", 0, 3, -1, 1, 22.16119),
])
sketch11.setExpression("Constraints[7]", "Params.sketch11_diameter")
pocket10 = body.newObject("PartDesign::Pocket", "Pocket009")
pocket10.Profile = sketch11
pocket10.setExpression("Length", "Params.pocket10_length")

sketch12 = body.newObject("Sketcher::SketchObject", "Sketch011")
sketch12.Placement = App.Placement(App.Vector(0, 0, 0), App.Rotation(App.Vector(0.75470958, -0.656059029, 0), App.Vector(0, 0, -1), App.Vector(0.656059029, 0.75470958, 0), "ZXY"))
sketch12.addGeometry([
    Part.Circle(App.Vector(-69.2, -200.7, 0), App.Vector(0, 0, 1), 1.6),
    Part.Circle(App.Vector(-69.2, -49.3, 0), App.Vector(0, 0, 1), 1.6),
], False)
sketch12.addConstraint([
    Sketcher.Constraint("Equal", 0, 1),
    Sketcher.Constraint("Vertical", 0, 3, 1, 3),
    Sketcher.Constraint("Diameter", 0, 3.2),
    Sketcher.Constraint("DistanceX", 0, 3, -1, 1, 69.177168),
    Sketcher.Constraint("DistanceY", 0, 3, -1, 1, 200.735803),
    Sketcher.Constraint("DistanceY", 1, 3, -1, 1, 49.264197),
])
sketch12.setExpression("Constraints[2]", "Params.sketch12_diameter")
pocket11 = body.newObject("PartDesign::Pocket", "Pocket010")
pocket11.Profile = sketch12
pocket11.setExpression("Length", "Params.pocket11_length")

sketch13 = body.newObject("Sketcher::SketchObject", "Sketch012")
sketch13.AttachmentSupport = (doc.getObject("XY_Plane"), [""])
sketch13.MapMode = "FlatFace"
sketch13.AttachmentOffset = App.Placement(App.Vector(0, 0, 250), App.Rotation())
add_polygon(sketch13, [(-230, 62), (-257, 62), (-242, 49)])
sketch13.addConstraint([
    Sketcher.Constraint("Horizontal", 0),
    Sketcher.Constraint("Perpendicular", 1, 2),
    Sketcher.Constraint("Angle", 1, Q("-41 deg")),
    Sketcher.Constraint("DistanceX", 0, 2, 1, 2, 15.0),
    Sketcher.Constraint("DistanceX", 0, 2, -1, 1, 256.69741),
    Sketcher.Constraint("DistanceY", -1, 1, 0, 2, 62.325608),
])
pocket12 = body.newObject("PartDesign::Pocket", "Pocket011")
pocket12.Profile = sketch13
pocket12.setExpression("Length", "Params.pocket12_length")

sketch14 = body.newObject("Sketcher::SketchObject", "Sketch013")
sketch14.Placement = App.Placement(App.Vector(-162.070922, 140.886103, 0), App.Rotation(App.Vector(0, 0, 1), App.Vector(0.656059029, 0.75470958, 0), App.Vector(-0.75470958, 0.656059029, 0), "ZXY"))
add_polygon(sketch14, [(0, -104), (0, -121), (250, -121), (250, -104)])
sketch14.addConstraint([
    Sketcher.Constraint("Vertical", 0),
    Sketcher.Constraint("Horizontal", 1),
    Sketcher.Constraint("Vertical", 2),
    Sketcher.Constraint("Horizontal", 3),
    Sketcher.Constraint("PointOnObject", 0, 2, -2),
    Sketcher.Constraint("DistanceX", 1, 1, 1, 2, 250.0),
    Sketcher.Constraint("DistanceY", 0, 2, 0, 1, 17.277243),
    Sketcher.Constraint("DistanceY", 0, 2, -1, 1, 121.37092),
])
sketch14.setExpression("Constraints[9]", "Params.sketch14_width")
pad2 = body.newObject("PartDesign::Pad", "Pad001")
pad2.Profile = sketch14
pad2.setExpression("Length", "Params.pad2_length")

sketch15 = body.newObject("Sketcher::SketchObject", "Sketch014")
sketch15.AttachmentSupport = (doc.getObject("XY_Plane"), [""])
sketch15.MapMode = "FlatFace"
sketch15.AttachmentOffset = App.Placement(App.Vector(0, 0, 250), App.Rotation())
sketch15.addGeometry([
    Part.Circle(App.Vector(-78.6, 54.3, 0), App.Vector(0, 0, 1), 1.5),
    Part.Circle(App.Vector(-220.4, 54.3, 0), App.Vector(0, 0, 1), 1.5),
], False)
sketch15.addConstraint([
    Sketcher.Constraint("Equal", 0, 1),
    Sketcher.Constraint("Horizontal", 0, 3, 1, 3),
    Sketcher.Constraint("Diameter", 0, 3.0),
    Sketcher.Constraint("DistanceX", 0, 3, -1, 1, 78.60377),
    Sketcher.Constraint("DistanceX", 1, 3, -1, 1, 220.362519),
    Sketcher.Constraint("DistanceY", -1, 1, 0, 3, 54.325608),
])
sketch15.setExpression("Constraints[2]", "Params.sketch15_diameter")
pocket13 = body.newObject("PartDesign::Pocket", "Pocket012")
pocket13.Profile = sketch15
pocket13.Type = "ThroughAll"
pocket13.Midplane = True

doc.recompute()
